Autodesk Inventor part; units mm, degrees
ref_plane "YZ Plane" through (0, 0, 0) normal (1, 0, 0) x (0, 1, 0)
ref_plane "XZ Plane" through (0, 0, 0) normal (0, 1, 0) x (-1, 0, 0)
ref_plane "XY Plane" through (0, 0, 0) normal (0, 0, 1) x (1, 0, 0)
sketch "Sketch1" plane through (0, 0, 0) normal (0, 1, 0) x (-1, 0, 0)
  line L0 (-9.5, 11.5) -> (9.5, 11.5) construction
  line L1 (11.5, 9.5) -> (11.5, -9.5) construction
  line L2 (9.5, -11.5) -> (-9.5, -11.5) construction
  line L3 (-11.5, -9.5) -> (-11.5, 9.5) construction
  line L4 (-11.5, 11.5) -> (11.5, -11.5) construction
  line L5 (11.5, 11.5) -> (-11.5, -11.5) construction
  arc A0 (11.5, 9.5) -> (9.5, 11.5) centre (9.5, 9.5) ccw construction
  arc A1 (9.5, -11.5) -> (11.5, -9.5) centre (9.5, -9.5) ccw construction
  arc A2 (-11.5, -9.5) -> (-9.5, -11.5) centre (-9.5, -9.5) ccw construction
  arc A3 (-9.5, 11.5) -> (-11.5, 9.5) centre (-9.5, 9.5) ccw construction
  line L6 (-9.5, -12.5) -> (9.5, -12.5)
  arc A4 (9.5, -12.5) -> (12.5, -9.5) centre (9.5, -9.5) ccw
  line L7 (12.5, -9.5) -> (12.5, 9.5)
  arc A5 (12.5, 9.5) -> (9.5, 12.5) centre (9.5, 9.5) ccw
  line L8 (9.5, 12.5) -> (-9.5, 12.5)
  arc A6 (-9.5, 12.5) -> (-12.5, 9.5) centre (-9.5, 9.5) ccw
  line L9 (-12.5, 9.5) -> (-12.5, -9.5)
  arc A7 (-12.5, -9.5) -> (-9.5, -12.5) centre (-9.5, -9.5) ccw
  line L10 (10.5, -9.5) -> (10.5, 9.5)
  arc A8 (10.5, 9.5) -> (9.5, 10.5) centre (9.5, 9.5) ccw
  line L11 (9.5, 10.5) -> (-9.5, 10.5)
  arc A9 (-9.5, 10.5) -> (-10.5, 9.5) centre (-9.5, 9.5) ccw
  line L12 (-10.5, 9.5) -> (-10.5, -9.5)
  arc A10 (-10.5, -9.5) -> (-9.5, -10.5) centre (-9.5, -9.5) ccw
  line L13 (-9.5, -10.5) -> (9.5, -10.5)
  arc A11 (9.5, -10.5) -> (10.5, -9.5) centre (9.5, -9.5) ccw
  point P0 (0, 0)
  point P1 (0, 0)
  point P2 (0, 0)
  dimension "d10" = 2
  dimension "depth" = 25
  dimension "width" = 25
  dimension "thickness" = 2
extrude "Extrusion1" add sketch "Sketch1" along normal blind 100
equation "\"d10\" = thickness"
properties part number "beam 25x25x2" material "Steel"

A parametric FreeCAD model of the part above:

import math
import FreeCAD as App
import Part
import Sketcher

V = App.Vector
Q = App.Units.Quantity

doc = App.newDocument("Part")
params = doc.addObject("Spreadsheet::Sheet", "Params")
for row, (alias, value) in enumerate([
    ("sketch1_radius", "1 mm"),
    ("sketch1_radius2", "3 mm"),
    ("sketch1_width", "19 mm"),
    ("pad1_length", "100 mm"),
], start=1):
    params.set(f"A{row}", alias)
    params.set(f"B{row}", "=" + value)
    params.setAlias(f"B{row}", alias)

body = doc.addObject("PartDesign::Body", "Body")

# Sketch on XZ plane
sketch1 = body.newObject("Sketcher::SketchObject", "Sketch")
sketch1.AttachmentSupport = (doc.getObject("XZ_Plane"), [""])
sketch1.MapMode = "FlatFace"
sketch1.addGeometry([
    Part.ArcOfCircle(Part.Circle(V(9.5, -9.5, 0), V(0, 0, 1), 3), math.radians(-90), math.radians(0)),  # 0
    Part.LineSegment(V(9.5, -12.5, 0), V(-9.5, -12.5, 0)),  # 1
    Part.ArcOfCircle(Part.Circle(V(-9.5, -9.5, 0), V(0, 0, 1), 3), math.radians(180), math.radians(270)),  # 2
    Part.LineSegment(V(-12.5, -9.5, 0), V(-12.5, 9.5, 0)),  # 3
    Part.ArcOfCircle(Part.Circle(V(-9.5, 9.5, 0), V(0, 0, 1), 3), math.radians(90), math.radians(180)),  # 4
    Part.LineSegment(V(-9.5, 12.5, 0), V(9.5, 12.5, 0)),  # 5
    Part.ArcOfCircle(Part.Circle(V(9.5, 9.5, 0), V(0, 0, 1), 3), math.radians(0), math.radians(90)),  # 6
    Part.LineSegment(V(12.5, 9.5, 0), V(12.5, -9.5, 0)),  # 7
    Part.LineSegment(V(-10.5, 9.5, 0), V(-10.5, -9.5, 0)),  # 8
    Part.ArcOfCircle(Part.Circle(V(-9.5, -9.5, 0), V(0, 0, 1), 1), math.radians(180), math.radians(270)),  # 9
    Part.LineSegment(V(-9.5, -10.5, 0), V(9.5, -10.5, 0)),  # 10
    Part.ArcOfCircle(Part.Circle(V(9.5, -9.5, 0), V(0, 0, 1), 1), math.radians(-90), math.radians(0)),  # 11
    Part.LineSegment(V(10.5, -9.5, 0), V(10.5, 9.5, 0)),  # 12
    Part.ArcOfCircle(Part.Circle(V(9.5, 9.5, 0), V(0, 0, 1), 1), math.radians(0), math.radians(90)),  # 13
    Part.LineSegment(V(9.5, 10.5, 0), V(-9.5, 10.5, 0)),  # 14
    Part.ArcOfCircle(Part.Circle(V(-9.5, 9.5, 0), V(0, 0, 1), 1), math.radians(90), math.radians(180)),  # 15
], False)
sketch1.addConstraint([
    Sketcher.Constraint("Tangent", 0, 1, 1, 1),
    Sketcher.Constraint("Tangent", 1, 2, 2, 2),
    Sketcher.Constraint("Tangent", 2, 1, 3, 1),
    Sketcher.Constraint("Tangent", 3, 2, 4, 2),
    Sketcher.Constraint("Tangent", 4, 1, 5, 1),
    Sketcher.Constraint("Tangent", 5, 2, 6, 2),
    Sketcher.Constraint("Tangent", 6, 1, 7, 1),
    Sketcher.Constraint("Tangent", 7, 2, 0, 2),
    Sketcher.Constraint("Tangent", 8, 2, 9, 1),
    Sketcher.Constraint("Tangent", 9, 2, 10, 1),
    Sketcher.Constraint("Tangent", 10, 2, 11, 1),
    Sketcher.Constraint("Tangent", 11, 2, 12, 1),
    Sketcher.Constraint("Tangent", 12, 2, 13, 1),
    Sketcher.Constraint("Tangent", 13, 2, 14, 1),
    Sketcher.Constraint("Tangent", 14, 2, 15, 1),
    Sketcher.Constraint("Tangent", 15, 2, 8, 1),
    Sketcher.Constraint("Horizontal", 1),
    Sketcher.Constraint("Vertical", 3),
    Sketcher.Constraint("Horizontal", 5),
    Sketcher.Constraint("Vertical", 7),
    Sketcher.Constraint("Vertical", 8),
    Sketcher.Constraint("Horizontal", 10),
    Sketcher.Constraint("Vertical", 12),
    Sketcher.Constraint("Horizontal", 14),
    Sketcher.Constraint("Coincident", 9, 3, 2, 3),
    Sketcher.Constraint("Coincident", 11, 3, 0, 3),
    Sketcher.Constraint("Coincident", 13, 3, 6, 3),
    Sketcher.Constraint("Equal", 0, 2),
    Sketcher.Constraint("Equal", 2, 4),
    Sketcher.Constraint("Equal", 4, 6),
    Sketcher.Constraint("Equal", 13, 15),
    Sketcher.Constraint("Symmetric", 0, 3, 4, 3, -1, 1),
    Sketcher.Constraint("Equal", 14, 3),
    Sketcher.Constraint("Radius", 9, Q("1 mm")),
    Sketcher.Constraint("Radius", 0, Q("3 mm")),
    Sketcher.Constraint("DistanceX", 1, 2, 1, 1, Q("19 mm")),
])
sketch1.setExpression("Constraints[33]", "Params.sketch1_radius")
sketch1.setExpression("Constraints[34]", "Params.sketch1_radius2")
sketch1.setExpression("Constraints[35]", "Params.sketch1_width")
pad1 = body.newObject("PartDesign::Pad", "Pad")
pad1.Profile = sketch1
pad1.setExpression("Length", "Params.pad1_length")
pad1.Reversed = True

doc.recompute()
